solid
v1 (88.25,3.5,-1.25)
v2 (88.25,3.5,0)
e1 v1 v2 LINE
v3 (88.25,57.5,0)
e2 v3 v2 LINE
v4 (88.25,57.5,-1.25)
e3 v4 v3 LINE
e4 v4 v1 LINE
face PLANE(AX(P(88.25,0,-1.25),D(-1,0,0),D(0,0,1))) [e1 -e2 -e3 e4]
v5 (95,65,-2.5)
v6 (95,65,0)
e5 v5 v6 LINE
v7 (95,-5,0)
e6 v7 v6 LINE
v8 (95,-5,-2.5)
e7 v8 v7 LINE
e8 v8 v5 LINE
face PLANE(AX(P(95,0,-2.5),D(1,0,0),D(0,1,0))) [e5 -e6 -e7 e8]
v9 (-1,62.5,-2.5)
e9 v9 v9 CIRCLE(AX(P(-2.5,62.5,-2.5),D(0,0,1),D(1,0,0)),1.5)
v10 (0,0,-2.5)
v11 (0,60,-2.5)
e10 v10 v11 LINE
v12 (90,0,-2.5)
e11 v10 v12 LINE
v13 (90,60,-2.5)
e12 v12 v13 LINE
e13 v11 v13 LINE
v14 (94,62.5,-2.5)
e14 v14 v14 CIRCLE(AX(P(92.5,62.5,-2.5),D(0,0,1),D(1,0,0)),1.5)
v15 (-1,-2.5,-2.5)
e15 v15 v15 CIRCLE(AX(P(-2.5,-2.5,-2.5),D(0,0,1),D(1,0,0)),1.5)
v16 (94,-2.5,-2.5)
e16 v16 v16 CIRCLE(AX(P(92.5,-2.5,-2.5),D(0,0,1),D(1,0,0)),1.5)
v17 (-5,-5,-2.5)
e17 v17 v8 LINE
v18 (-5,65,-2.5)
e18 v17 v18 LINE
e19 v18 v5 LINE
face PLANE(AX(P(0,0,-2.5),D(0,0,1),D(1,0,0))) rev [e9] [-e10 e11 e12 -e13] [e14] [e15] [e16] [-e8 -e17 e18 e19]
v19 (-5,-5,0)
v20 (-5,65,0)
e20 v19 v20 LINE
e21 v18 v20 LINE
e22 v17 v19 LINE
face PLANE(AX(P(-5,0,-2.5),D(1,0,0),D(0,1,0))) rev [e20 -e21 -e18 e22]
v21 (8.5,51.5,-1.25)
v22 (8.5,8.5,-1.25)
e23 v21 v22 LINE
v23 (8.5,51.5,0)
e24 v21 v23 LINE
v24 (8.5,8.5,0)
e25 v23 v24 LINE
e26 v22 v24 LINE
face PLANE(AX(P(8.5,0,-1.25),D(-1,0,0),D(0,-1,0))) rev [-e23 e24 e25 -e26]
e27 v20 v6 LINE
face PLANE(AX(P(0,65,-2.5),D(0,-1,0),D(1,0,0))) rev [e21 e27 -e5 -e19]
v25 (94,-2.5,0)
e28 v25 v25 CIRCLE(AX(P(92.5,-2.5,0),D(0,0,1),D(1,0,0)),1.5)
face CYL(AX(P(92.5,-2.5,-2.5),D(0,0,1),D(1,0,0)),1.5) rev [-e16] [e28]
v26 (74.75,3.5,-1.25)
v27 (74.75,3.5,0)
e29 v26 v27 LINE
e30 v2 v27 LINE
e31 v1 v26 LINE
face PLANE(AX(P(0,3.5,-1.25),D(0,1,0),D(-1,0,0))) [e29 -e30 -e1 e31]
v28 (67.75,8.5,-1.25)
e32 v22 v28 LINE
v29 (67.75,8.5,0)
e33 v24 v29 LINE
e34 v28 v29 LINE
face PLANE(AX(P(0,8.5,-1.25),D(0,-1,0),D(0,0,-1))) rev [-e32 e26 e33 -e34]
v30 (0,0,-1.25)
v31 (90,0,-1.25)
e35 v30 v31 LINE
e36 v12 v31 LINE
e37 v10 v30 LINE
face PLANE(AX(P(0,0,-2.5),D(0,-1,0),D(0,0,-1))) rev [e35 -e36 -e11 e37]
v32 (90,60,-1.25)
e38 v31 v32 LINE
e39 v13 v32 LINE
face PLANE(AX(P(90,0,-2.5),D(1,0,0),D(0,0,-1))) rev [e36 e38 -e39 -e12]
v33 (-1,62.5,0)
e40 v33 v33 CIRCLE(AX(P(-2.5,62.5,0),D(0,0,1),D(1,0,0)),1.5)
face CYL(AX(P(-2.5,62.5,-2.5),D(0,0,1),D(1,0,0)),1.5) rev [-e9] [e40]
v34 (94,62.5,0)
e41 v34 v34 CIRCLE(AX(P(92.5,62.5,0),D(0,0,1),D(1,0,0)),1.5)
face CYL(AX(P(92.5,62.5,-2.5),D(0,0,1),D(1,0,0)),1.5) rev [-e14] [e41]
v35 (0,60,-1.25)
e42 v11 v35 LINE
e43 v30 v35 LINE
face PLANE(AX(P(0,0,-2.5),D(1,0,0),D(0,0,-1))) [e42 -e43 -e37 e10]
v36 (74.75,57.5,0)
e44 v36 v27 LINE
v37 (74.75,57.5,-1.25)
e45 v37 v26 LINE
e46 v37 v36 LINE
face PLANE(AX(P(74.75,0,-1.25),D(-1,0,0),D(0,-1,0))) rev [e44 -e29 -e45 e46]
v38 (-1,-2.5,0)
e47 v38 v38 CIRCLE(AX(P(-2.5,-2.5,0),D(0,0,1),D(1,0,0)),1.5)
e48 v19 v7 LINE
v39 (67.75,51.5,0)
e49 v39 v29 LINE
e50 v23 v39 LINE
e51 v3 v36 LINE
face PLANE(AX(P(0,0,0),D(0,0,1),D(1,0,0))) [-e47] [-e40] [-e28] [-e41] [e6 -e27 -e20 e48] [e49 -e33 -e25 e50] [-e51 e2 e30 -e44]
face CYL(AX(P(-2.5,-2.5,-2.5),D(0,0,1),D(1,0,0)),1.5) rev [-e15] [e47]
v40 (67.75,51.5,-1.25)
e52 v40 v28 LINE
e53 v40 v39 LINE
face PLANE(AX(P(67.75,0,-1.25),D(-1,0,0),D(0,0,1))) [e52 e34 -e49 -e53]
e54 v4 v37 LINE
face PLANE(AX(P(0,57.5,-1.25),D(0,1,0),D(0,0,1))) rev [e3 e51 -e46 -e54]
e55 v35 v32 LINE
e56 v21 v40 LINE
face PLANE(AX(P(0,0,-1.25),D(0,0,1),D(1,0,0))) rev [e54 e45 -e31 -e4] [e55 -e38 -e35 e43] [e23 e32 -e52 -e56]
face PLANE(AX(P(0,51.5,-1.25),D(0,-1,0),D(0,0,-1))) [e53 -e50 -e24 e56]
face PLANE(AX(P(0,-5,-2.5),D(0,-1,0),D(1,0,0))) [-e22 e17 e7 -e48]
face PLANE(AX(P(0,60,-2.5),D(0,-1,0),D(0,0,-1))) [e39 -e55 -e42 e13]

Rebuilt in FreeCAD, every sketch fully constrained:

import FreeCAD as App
import Part
import Sketcher
from FreeCAD import Vector
Q = App.Units.Quantity

doc = App.newDocument("Part")
body = doc.addObject("PartDesign::Body", "Body")

# Sketch on XY plane
sketch1 = body.newObject("Sketcher::SketchObject", "Sketch")
sketch1.AttachmentSupport = (doc.getObject("XY_Plane"), [""])
sketch1.MapMode = "FlatFace"
sketch1.addGeometry([
    Part.LineSegment(Vector(0, 60, 0), Vector(0, 0, 0)),  # 0
    Part.LineSegment(Vector(0, 0, 0), Vector(90, 0, 0)),  # 1
    Part.LineSegment(Vector(90, 0, 0), Vector(90, 60, 0)),  # 2
    Part.LineSegment(Vector(90, 60, 0), Vector(0, 60, 0)),  # 3
    Part.LineSegment(Vector(67.75, 8.5, 0), Vector(8.5, 8.5, 0)),  # 4
    Part.LineSegment(Vector(8.5, 8.5, 0), Vector(8.5, 51.5, 0)),  # 5
    Part.LineSegment(Vector(8.5, 51.5, 0), Vector(67.75, 51.5, 0)),  # 6
    Part.LineSegment(Vector(67.75, 51.5, 0), Vector(67.75, 8.5, 0)),  # 7
    Part.LineSegment(Vector(88.25, 3.5, 0), Vector(74.75, 3.5, 0)),  # 8
    Part.LineSegment(Vector(74.75, 3.5, 0), Vector(74.75, 57.5, 0)),  # 9
    Part.LineSegment(Vector(74.75, 57.5, 0), Vector(88.25, 57.5, 0)),  # 10
    Part.LineSegment(Vector(88.25, 57.5, 0), Vector(88.25, 3.5, 0)),  # 11
], False)
sketch1.addConstraint([
    Sketcher.Constraint("Coincident", 0, 2, 1, 1),
    Sketcher.Constraint("Coincident", 1, 2, 2, 1),
    Sketcher.Constraint("Coincident", 2, 2, 3, 1),
    Sketcher.Constraint("Coincident", 3, 2, 0, 1),
    Sketcher.Constraint("Coincident", 4, 2, 5, 1),
    Sketcher.Constraint("Coincident", 5, 2, 6, 1),
    Sketcher.Constraint("Coincident", 6, 2, 7, 1),
    Sketcher.Constraint("Coincident", 7, 2, 4, 1),
    Sketcher.Constraint("Coincident", 8, 2, 9, 1),
    Sketcher.Constraint("Coincident", 9, 2, 10, 1),
    Sketcher.Constraint("Coincident", 10, 2, 11, 1),
    Sketcher.Constraint("Coincident", 11, 2, 8, 1),
    Sketcher.Constraint("Vertical", 0),
    Sketcher.Constraint("Horizontal", 1),
    Sketcher.Constraint("Vertical", 2),
    Sketcher.Constraint("Horizontal", 3),
    Sketcher.Constraint("Horizontal", 4),
    Sketcher.Constraint("Vertical", 5),
    Sketcher.Constraint("Horizontal", 6),
    Sketcher.Constraint("Vertical", 7),
    Sketcher.Constraint("Horizontal", 8),
    Sketcher.Constraint("Vertical", 9),
    Sketcher.Constraint("Horizontal", 10),
    Sketcher.Constraint("Vertical", 11),
    Sketcher.Constraint("Coincident", 0, 2, -1, 1),
    Sketcher.Constraint("DistanceX", 1, 1, 1, 2, Q("90 mm")),
    Sketcher.Constraint("DistanceY", 0, 2, 0, 1, Q("60 mm")),
    Sketcher.Constraint("DistanceY", 5, 1, 5, 2, Q("43 mm")),
    Sketcher.Constraint("DistanceY", 9, 1, 9, 2, Q("54 mm")),
    Sketcher.Constraint("DistanceX", 8, 2, 8, 1, Q("13.5 mm")),
    Sketcher.Constraint("DistanceX", 7, 2, 8, 2, Q("7 mm")),
    Sketcher.Constraint("DistanceY", 8, 2, 7, 2, Q("5 mm")),
    Sketcher.Constraint("DistanceX", 4, 2, 4, 1, Q("59.25 mm")),
    Sketcher.Constraint("DistanceX", -1, 1, 4, 2, Q("8.5 mm")),
    Sketcher.Constraint("DistanceY", -1, 1, 4, 2, Q("8.5 mm")),
])
pad1 = body.newObject("PartDesign::Pad", "Pad")
pad1.Profile = sketch1
pad1.Length = 1.25
pad1.Reversed = True

# Sketch on XY plane
sketch2 = body.newObject("Sketcher::SketchObject", "Sketch001")
sketch2.AttachmentSupport = (doc.getObject("XY_Plane"), [""])
sketch2.MapMode = "FlatFace"
sketch2.addGeometry([
    Part.LineSegment(Vector(-5, 65, 0), Vector(-5, -5, 0)),  # 0
    Part.LineSegment(Vector(-5, -5, 0), Vector(95, -5, 0)),  # 1
    Part.LineSegment(Vector(95, -5, 0), Vector(95, 65, 0)),  # 2
    Part.LineSegment(Vector(95, 65, 0), Vector(-5, 65, 0)),  # 3
    Part.Circle(Vector(-2.5, -2.5, 0), Vector(0, 0, 1), 1.5),  # 4
    Part.Circle(Vector(92.5, -2.5, 0), Vector(0, 0, 1), 1.5),  # 5
    Part.LineSegment(Vector(90, 0, 0), Vector(0, 0, 0)),  # 6
    Part.LineSegment(Vector(0, 0, 0), Vector(0, 60, 0)),  # 7
    Part.LineSegment(Vector(0, 60, 0), Vector(90, 60, 0)),  # 8
    Part.LineSegment(Vector(90, 60, 0), Vector(90, 0, 0)),  # 9
    Part.Circle(Vector(-2.5, 62.5, 0), Vector(0, 0, 1), 1.5),  # 10
    Part.Circle(Vector(92.5, 62.5, 0), Vector(0, 0, 1), 1.5),  # 11
], False)
sketch2.addConstraint([
    Sketcher.Constraint("Coincident", 0, 2, 1, 1),
    Sketcher.Constraint("Coincident", 1, 2, 2, 1),
    Sketcher.Constraint("Coincident", 2, 2, 3, 1),
    Sketcher.Constraint("Coincident", 3, 2, 0, 1),
    Sketcher.Constraint("Coincident", 6, 2, 7, 1),
    Sketcher.Constraint("Coincident", 7, 2, 8, 1),
    Sketcher.Constraint("Coincident", 8, 2, 9, 1),
    Sketcher.Constraint("Coincident", 9, 2, 6, 1),
    Sketcher.Constraint("Vertical", 0),
    Sketcher.Constraint("Horizontal", 1),
    Sketcher.Constraint("Vertical", 2),
    Sketcher.Constraint("Horizontal", 3),
    Sketcher.Constraint("Horizontal", 6),
    Sketcher.Constraint("Vertical", 7),
    Sketcher.Constraint("Horizontal", 8),
    Sketcher.Constraint("Vertical", 9),
    Sketcher.Constraint("Coincident", 6, 2, -1, 1),
    Sketcher.Constraint("Equal", 4, 5),
    Sketcher.Constraint("Equal", 5, 10),
    Sketcher.Constraint("Equal", 10, 11),
    Sketcher.Constraint("Horizontal", 4, 3, 5, 3),
    Sketcher.Constraint("Horizontal", 10, 3, 11, 3),
    Sketcher.Constraint("Vertical", 4, 3, 10, 3),
    Sketcher.Constraint("Vertical", 5, 3, 11, 3),
    Sketcher.Constraint("Diameter", 4, Q("3 mm")),
    Sketcher.Constraint("DistanceX", 1, 1, 1, 2, Q("100 mm")),
    Sketcher.Constraint("DistanceX", 6, 2, 6, 1, Q("90 mm")),
    Sketcher.Constraint("DistanceY", 0, 2, 0, 1, Q("70 mm")),
    Sketcher.Constraint("DistanceY", 7, 1, 7, 2, Q("60 mm")),
    Sketcher.Constraint("DistanceX", 0, 2, -1, 1, Q("5 mm")),
    Sketcher.Constraint("DistanceY", 0, 2, -1, 1, Q("5 mm")),
    Sketcher.Constraint("DistanceX", 4, 3, 5, 3, Q("95 mm")),
    Sketcher.Constraint("DistanceY", 4, 3, 10, 3, Q("65 mm")),
    Sketcher.Constraint("DistanceX", 4, 3, -1, 1, Q("2.5 mm")),
    Sketcher.Constraint("DistanceY", 4, 3, -1, 1, Q("2.5 mm")),
])
pad2 = body.newObject("PartDesign::Pad", "Pad001")
pad2.Profile = sketch2
pad2.Length = 2.5
pad2.Reversed = True

doc.recompute()
